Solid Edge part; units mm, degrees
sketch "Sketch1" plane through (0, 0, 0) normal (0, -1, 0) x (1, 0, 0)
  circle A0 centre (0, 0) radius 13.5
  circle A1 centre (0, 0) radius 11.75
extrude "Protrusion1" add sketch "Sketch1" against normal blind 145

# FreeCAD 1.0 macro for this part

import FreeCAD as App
import Part
import Sketcher
Q = App.Units.Quantity

doc = App.newDocument("Part")
params = doc.addObject("Spreadsheet::Sheet", "Params")
for row, (alias, value) in enumerate([
    ("sketch1_diameter", "27 mm"),
    ("sketch1_diameter2", "23.5 mm"),
    ("pad1_length", "145 mm"),
], start=1):
    params.set(f"A{row}", alias)
    params.set(f"B{row}", "=" + value)
    params.setAlias(f"B{row}", alias)

body = doc.addObject("PartDesign::Body", "Body")

# Sketch on XZ plane
sketch1 = body.newObject("Sketcher::SketchObject", "Sketch")
sketch1.AttachmentSupport = (doc.getObject("XZ_Plane"), [""])
sketch1.MapMode = "FlatFace"
sketch1.addGeometry([
    Part.Circle(App.Vector(0, 0, 0), App.Vector(0, 0, 1), 13.5),
    Part.Circle(App.Vector(0, 0, 0), App.Vector(0, 0, 1), 11.75),
], False)
sketch1.addConstraint([
    Sketcher.Constraint("Coincident", 0, 3, -1, 1),
    Sketcher.Constraint("Coincident", 1, 3, -1, 1),
    Sketcher.Constraint("Diameter", 0, Q("27 mm")),
    Sketcher.Constraint("Diameter", 1, Q("23.5 mm")),
])
sketch1.setExpression("Constraints[2]", "Params.sketch1_diameter")
sketch1.setExpression("Constraints[3]", "Params.sketch1_diameter2")
pad1 = body.newObject("PartDesign::Pad", "Pad")
pad1.Profile = sketch1
pad1.setExpression("Length", "Params.pad1_length")
pad1.Reversed = True

doc.recompute()
